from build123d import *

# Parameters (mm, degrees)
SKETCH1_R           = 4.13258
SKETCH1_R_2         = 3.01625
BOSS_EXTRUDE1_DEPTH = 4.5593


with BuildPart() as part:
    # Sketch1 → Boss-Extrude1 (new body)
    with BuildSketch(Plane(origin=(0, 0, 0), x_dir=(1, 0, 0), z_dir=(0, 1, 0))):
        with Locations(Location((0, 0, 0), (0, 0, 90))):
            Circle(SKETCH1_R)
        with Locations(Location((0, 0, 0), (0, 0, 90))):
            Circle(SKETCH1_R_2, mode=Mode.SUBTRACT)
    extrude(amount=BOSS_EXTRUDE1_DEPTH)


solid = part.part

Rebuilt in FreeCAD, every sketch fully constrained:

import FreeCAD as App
import Part
import Sketcher

doc = App.newDocument("Part")
body = doc.addObject("PartDesign::Body", "Body")

# Sketch on XZ plane
sketch1 = body.newObject("Sketcher::SketchObject", "Sketch")
sketch1.AttachmentSupport = (doc.getObject("XZ_Plane"), [""])
sketch1.MapMode = "FlatFace"
sketch1.addGeometry([
    Part.Circle(App.Vector(0, 0, 0), App.Vector(0, 0, 1), 4.1),
    Part.Circle(App.Vector(0, 0, 0), App.Vector(0, 0, 1), 3),
], False)
sketch1.addConstraint([
    Sketcher.Constraint("Coincident", 0, 3, -1, 1),
    Sketcher.Constraint("Coincident", 1, 3, -1, 1),
    Sketcher.Constraint("Diameter", 1, 6.0325),
    Sketcher.Constraint("Diameter", 0, 8.26516),
])
pad1 = body.newObject("PartDesign::Pad", "Pad")
pad1.Profile = sketch1
pad1.Length = 4.5593
pad1.Reversed = True

doc.recompute()
